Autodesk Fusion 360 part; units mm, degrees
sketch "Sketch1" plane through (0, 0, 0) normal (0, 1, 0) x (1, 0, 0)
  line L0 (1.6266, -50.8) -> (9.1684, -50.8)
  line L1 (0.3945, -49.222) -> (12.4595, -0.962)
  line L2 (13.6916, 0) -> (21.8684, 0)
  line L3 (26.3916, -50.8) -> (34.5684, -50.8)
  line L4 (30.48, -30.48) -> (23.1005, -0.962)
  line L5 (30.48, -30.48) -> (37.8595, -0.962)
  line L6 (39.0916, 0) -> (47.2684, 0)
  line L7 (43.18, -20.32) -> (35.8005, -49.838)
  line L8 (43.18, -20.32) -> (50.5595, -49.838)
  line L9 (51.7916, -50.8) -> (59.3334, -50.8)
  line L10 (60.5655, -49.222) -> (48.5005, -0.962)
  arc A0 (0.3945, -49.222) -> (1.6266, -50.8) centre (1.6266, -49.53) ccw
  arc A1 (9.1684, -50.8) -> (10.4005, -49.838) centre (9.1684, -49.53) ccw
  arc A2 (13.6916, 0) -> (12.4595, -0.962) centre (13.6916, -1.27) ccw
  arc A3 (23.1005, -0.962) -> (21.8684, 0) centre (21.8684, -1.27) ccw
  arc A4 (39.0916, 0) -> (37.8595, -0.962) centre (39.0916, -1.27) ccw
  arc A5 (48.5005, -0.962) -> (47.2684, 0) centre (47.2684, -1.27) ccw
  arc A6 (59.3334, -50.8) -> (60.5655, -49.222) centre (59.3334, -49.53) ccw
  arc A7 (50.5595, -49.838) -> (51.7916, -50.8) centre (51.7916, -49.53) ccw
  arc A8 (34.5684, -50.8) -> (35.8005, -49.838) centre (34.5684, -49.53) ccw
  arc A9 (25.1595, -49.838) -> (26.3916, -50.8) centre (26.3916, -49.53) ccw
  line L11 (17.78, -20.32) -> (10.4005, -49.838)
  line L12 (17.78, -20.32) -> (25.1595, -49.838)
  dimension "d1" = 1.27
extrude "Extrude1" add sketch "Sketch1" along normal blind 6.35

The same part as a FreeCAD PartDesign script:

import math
import FreeCAD as App
import Part
import Sketcher
from FreeCAD import Vector
Q = App.Units.Quantity

doc = App.newDocument("Part")
body = doc.addObject("PartDesign::Body", "Body")

# Sketch on XZ plane
sketch1 = doc.addObject("Sketcher::SketchObject", "Sketch")
body.addObject(sketch1)
sketch1.AttachmentSupport = (doc.XZ_Plane, [""])
sketch1.MapMode = "FlatFace"
sketch1.addGeometry([
    Part.ArcOfCircle(Part.Circle(Vector(1.6266, 49.53, 0), Vector(0, 0, 1), 1.270014), math.radians(90), math.radians(194.035149)),  # 0
    Part.LineSegment(Vector(1.6266, 50.8, 0), Vector(9.1684, 50.8, 0)),  # 1
    Part.ArcOfCircle(Part.Circle(Vector(9.1684, 49.53, 0), Vector(0, 0, 1), 1.27), math.radians(14.035149), math.radians(90)),  # 2
    Part.LineSegment(Vector(10.4005, 49.838, 0), Vector(17.78, 20.32, 0)),  # 3
    Part.LineSegment(Vector(17.78, 20.32, 0), Vector(25.1595, 49.838, 0)),  # 4
    Part.ArcOfCircle(Part.Circle(Vector(26.3916, 49.53, 0), Vector(0, 0, 1), 1.270014), math.radians(90), math.radians(165.964851)),  # 5
    Part.LineSegment(Vector(26.3916, 50.8, 0), Vector(34.5684, 50.8, 0)),  # 6
    Part.ArcOfCircle(Part.Circle(Vector(34.5684, 49.53, 0), Vector(0, 0, 1), 1.27), math.radians(14.035149), math.radians(90)),  # 7
    Part.LineSegment(Vector(35.8005, 49.838, 0), Vector(43.18, 20.32, 0)),  # 8
    Part.LineSegment(Vector(43.18, 20.32, 0), Vector(50.5595, 49.838, 0)),  # 9
    Part.ArcOfCircle(Part.Circle(Vector(51.7916, 49.53, 0), Vector(0, 0, 1), 1.270014), math.radians(90), math.radians(165.964851)),  # 10
    Part.LineSegment(Vector(51.7916, 50.8, 0), Vector(59.3334, 50.8, 0)),  # 11
    Part.ArcOfCircle(Part.Circle(Vector(59.3334, 49.53, 0), Vector(0, 0, 1), 1.27), math.radians(-14.035149), math.radians(90)),  # 12
    Part.LineSegment(Vector(60.5655, 49.222, 0), Vector(48.5005, 0.962, 0)),  # 13
    Part.ArcOfCircle(Part.Circle(Vector(47.2684, 1.27, 0), Vector(0, 0, 1), 1.270014), math.radians(-90), math.radians(-14.035149)),  # 14
    Part.LineSegment(Vector(47.2684, 0, 0), Vector(39.0916, 0, 0)),  # 15
    Part.ArcOfCircle(Part.Circle(Vector(39.0916, 1.27, 0), Vector(0, 0, 1), 1.27), math.radians(-165.964851), math.radians(-90)),  # 16
    Part.LineSegment(Vector(37.8595, 0.962, 0), Vector(30.48, 30.48, 0)),  # 17
    Part.LineSegment(Vector(30.48, 30.48, 0), Vector(23.1005, 0.962, 0)),  # 18
    Part.ArcOfCircle(Part.Circle(Vector(21.8684, 1.27, 0), Vector(0, 0, 1), 1.270014), math.radians(-90), math.radians(-14.035149)),  # 19
    Part.LineSegment(Vector(21.8684, 0, 0), Vector(13.6916, 0, 0)),  # 20
    Part.ArcOfCircle(Part.Circle(Vector(13.6916, 1.27, 0), Vector(0, 0, 1), 1.27), math.radians(-165.964851), math.radians(-90)),  # 21
    Part.LineSegment(Vector(12.4595, 0.962, 0), Vector(0.3945, 49.222, 0)),  # 22
], False)
sketch1.addConstraint([
    Sketcher.Constraint("Tangent", 0, 1, 1, 1),
    Sketcher.Constraint("Tangent", 1, 2, 2, 2),
    Sketcher.Constraint("Tangent", 2, 1, 3, 1),
    Sketcher.Constraint("Coincident", 3, 2, 4, 1),
    Sketcher.Constraint("Tangent", 4, 2, 5, 2),
    Sketcher.Constraint("Tangent", 5, 1, 6, 1),
    Sketcher.Constraint("Tangent", 6, 2, 7, 2),
    Sketcher.Constraint("Tangent", 7, 1, 8, 1),
    Sketcher.Constraint("Coincident", 8, 2, 9, 1),
    Sketcher.Constraint("Tangent", 9, 2, 10, 2),
    Sketcher.Constraint("Tangent", 10, 1, 11, 1),
    Sketcher.Constraint("Tangent", 11, 2, 12, 2),
    Sketcher.Constraint("Tangent", 12, 1, 13, 1),
    Sketcher.Constraint("Tangent", 13, 2, 14, 2),
    Sketcher.Constraint("Tangent", 14, 1, 15, 1),
    Sketcher.Constraint("Tangent", 15, 2, 16, 2),
    Sketcher.Constraint("Tangent", 16, 1, 17, 1),
    Sketcher.Constraint("Coincident", 17, 2, 18, 1),
    Sketcher.Constraint("Tangent", 18, 2, 19, 2),
    Sketcher.Constraint("Tangent", 19, 1, 20, 1),
    Sketcher.Constraint("Tangent", 20, 2, 21, 2),
    Sketcher.Constraint("Tangent", 21, 1, 22, 1),
    Sketcher.Constraint("Tangent", 22, 2, 0, 2),
    Sketcher.Constraint("Horizontal", 1),
    Sketcher.Constraint("Horizontal", 6),
    Sketcher.Constraint("Horizontal", 11),
    Sketcher.Constraint("Horizontal", 15),
    Sketcher.Constraint("Horizontal", 20),
    Sketcher.Constraint("Equal", 0, 2),
    Sketcher.Constraint("Equal", 2, 5),
    Sketcher.Constraint("Equal", 5, 7),
    Sketcher.Constraint("Equal", 7, 10),
    Sketcher.Constraint("Equal", 10, 12),
    Sketcher.Constraint("Equal", 12, 14),
    Sketcher.Constraint("Equal", 14, 16),
    Sketcher.Constraint("Equal", 16, 19),
    Sketcher.Constraint("Equal", 19, 21),
    Sketcher.Constraint("PointOnObject", 14, 1, -1),
    Sketcher.Constraint("PointOnObject", 19, 1, -1),
    Sketcher.Constraint("Parallel", 3, 8),
    Sketcher.Constraint("Parallel", 4, 9),
    Sketcher.Constraint("Parallel", 9, 13),
    Sketcher.Constraint("Parallel", 8, 17),
    Sketcher.Constraint("Parallel", 13, 18),
    Sketcher.Constraint("Parallel", 17, 22),
    Sketcher.Constraint("Horizontal", 2, 3, 5, 3),
    Sketcher.Constraint("Horizontal", 7, 3, 10, 3),
    Sketcher.Constraint("Horizontal", 2, 1, 4, 2),
    Sketcher.Constraint("Horizontal", 3, 2, 8, 2),
    Sketcher.Constraint("Equal", 1, 11),
    Sketcher.Constraint("Equal", 6, 15),
    Sketcher.Constraint("Equal", 15, 20),
    Sketcher.Constraint("Equal", 9, 17),
    Sketcher.Constraint("Radius", 0, Q("0.05 in")),
    Sketcher.Constraint("DistanceY", -1, 1, 0, 1, Q("2 in")),
    Sketcher.Constraint("DistanceX", 2, 3, 7, 3, Q("1 in")),
    Sketcher.Constraint("DistanceX", -1, 1, 3, 2, Q("0.7 in")),
    Sketcher.Constraint("DistanceY", -1, 1, 3, 2, Q("0.8 in")),
    Sketcher.Constraint("DistanceX", 0, 3, 5, 3, Q("0.975 in")),
])
pad1 = doc.addObject("PartDesign::Pad", "Pad")
body.addObject(pad1)
pad1.Profile = sketch1
pad1.Length = Q("0.25 in")
pad1.Reversed = True

doc.recompute()
